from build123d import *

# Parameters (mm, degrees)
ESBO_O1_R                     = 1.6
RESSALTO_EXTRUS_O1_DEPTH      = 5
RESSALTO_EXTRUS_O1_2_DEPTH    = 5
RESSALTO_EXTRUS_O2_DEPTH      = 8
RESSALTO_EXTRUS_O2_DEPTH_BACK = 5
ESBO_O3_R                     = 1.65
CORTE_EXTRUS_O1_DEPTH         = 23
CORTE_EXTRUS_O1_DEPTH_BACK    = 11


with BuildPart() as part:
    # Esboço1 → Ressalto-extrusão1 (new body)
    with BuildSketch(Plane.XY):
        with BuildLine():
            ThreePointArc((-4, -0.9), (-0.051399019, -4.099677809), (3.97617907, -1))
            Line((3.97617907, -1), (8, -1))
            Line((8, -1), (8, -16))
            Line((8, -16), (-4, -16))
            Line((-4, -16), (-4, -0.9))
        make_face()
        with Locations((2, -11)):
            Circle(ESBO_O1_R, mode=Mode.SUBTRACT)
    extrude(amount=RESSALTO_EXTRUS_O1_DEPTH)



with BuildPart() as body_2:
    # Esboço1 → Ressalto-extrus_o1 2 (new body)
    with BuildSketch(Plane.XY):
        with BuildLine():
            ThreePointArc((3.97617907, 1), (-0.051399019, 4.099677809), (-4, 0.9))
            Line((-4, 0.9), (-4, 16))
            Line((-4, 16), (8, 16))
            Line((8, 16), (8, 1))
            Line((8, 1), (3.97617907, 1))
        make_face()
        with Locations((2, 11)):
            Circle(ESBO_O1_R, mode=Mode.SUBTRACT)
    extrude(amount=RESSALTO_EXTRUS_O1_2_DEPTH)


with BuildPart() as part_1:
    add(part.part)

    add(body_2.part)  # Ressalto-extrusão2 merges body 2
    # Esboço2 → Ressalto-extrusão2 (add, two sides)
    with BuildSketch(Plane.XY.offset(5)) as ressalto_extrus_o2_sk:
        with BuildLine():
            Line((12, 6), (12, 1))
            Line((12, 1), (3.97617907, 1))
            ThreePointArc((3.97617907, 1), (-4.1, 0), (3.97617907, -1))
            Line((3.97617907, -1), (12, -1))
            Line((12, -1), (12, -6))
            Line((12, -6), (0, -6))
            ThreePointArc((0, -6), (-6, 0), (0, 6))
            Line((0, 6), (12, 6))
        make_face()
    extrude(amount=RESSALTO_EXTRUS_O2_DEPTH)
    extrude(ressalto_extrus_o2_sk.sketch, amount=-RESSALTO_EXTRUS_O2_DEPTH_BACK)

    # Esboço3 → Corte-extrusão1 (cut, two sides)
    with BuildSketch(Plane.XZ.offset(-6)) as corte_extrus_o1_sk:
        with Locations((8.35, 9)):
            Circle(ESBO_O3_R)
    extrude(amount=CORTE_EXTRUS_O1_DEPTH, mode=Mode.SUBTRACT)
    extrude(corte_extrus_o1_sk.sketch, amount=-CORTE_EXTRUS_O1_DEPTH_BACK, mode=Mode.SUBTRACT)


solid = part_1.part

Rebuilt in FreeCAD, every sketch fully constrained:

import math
import FreeCAD as App
import Part
import Sketcher

V = App.Vector
Q = App.Units.Quantity

doc = App.newDocument("Part")
body = doc.addObject("PartDesign::Body", "Body")

# Sketch on XY plane
sketch1 = doc.addObject("Sketcher::SketchObject", "Sketch")
body.addObject(sketch1)
sketch1.AttachmentSupport = (doc.XY_Plane, [""])
sketch1.MapMode = "FlatFace"
sketch1.addGeometry(Part.ArcOfCircle(Part.Circle(V(0, 0, 0), V(0, 0, 1), 4.1), math.radians(-167), math.radians(-14)), False)
sketch1.addGeometry(Part.LineSegment(V(-4, -0.9, 0), V(-4, -16, 0)), False)
sketch1.addGeometry(Part.LineSegment(V(-4, -16, 0), V(8, -16, 0)), False)
sketch1.addGeometry(Part.LineSegment(V(8, -16, 0), V(8, -1, 0)), False)
sketch1.addGeometry(Part.LineSegment(V(8, -1, 0), V(4, -1, 0)), False)
sketch1.addGeometry(Part.Circle(V(2, -11, 0), V(0, 0, 1), 1.6), False)
sketch1.addConstraint(Sketcher.Constraint("Coincident", 0, 1, 1, 1))
sketch1.addConstraint(Sketcher.Constraint("Coincident", 1, 2, 2, 1))
sketch1.addConstraint(Sketcher.Constraint("Coincident", 2, 2, 3, 1))
sketch1.addConstraint(Sketcher.Constraint("Coincident", 3, 2, 4, 1))
sketch1.addConstraint(Sketcher.Constraint("Coincident", 4, 2, 0, 2))
sketch1.addConstraint(Sketcher.Constraint("Vertical", 1))
sketch1.addConstraint(Sketcher.Constraint("Horizontal", 2))
sketch1.addConstraint(Sketcher.Constraint("Vertical", 3))
sketch1.addConstraint(Sketcher.Constraint("Horizontal", 4))
sketch1.addConstraint(Sketcher.Constraint("Coincident", 0, 3, -1, 1))
sketch1.addConstraint(Sketcher.Constraint("Diameter", 5, Q("3.2 mm")))
sketch1.addConstraint(Sketcher.Constraint("Radius", 0, Q("4.1 mm")))
sketch1.addConstraint(Sketcher.Constraint("DistanceX", 2, 1, 2, 2, Q("12 mm")))
sketch1.addConstraint(Sketcher.Constraint("DistanceY", 3, 1, 3, 2, Q("15 mm")))
sketch1.addConstraint(Sketcher.Constraint("DistanceY", 1, 2, 1, 1, Q("15.1 mm")))
sketch1.addConstraint(Sketcher.Constraint("DistanceX", -1, 1, 5, 3, Q("2 mm")))
sketch1.addConstraint(Sketcher.Constraint("DistanceY", 5, 3, -1, 1, Q("11 mm")))
sketch1.addConstraint(Sketcher.Constraint("DistanceX", 0, 1, -1, 1, Q("4 mm")))
pad1 = doc.addObject("PartDesign::Pad", "Pad")
body.addObject(pad1)
pad1.Profile = sketch1
pad1.Length = 5
body2 = doc.addObject("PartDesign::Body", "Body001")

# Sketch on XY plane
sketch2 = doc.addObject("Sketcher::SketchObject", "Sketch001")
body2.addObject(sketch2)
sketch2.AttachmentSupport = (doc.getObject("XY_Plane001"), [""])
sketch2.MapMode = "FlatFace"
sketch2.addGeometry(Part.ArcOfCircle(Part.Circle(V(0, 0, 0), V(0, 0, 1), 4.1), math.radians(14), math.radians(167)), False)
sketch2.addGeometry(Part.LineSegment(V(4, 1, 0), V(8, 1, 0)), False)
sketch2.addGeometry(Part.LineSegment(V(8, 1, 0), V(8, 16, 0)), False)
sketch2.addGeometry(Part.LineSegment(V(8, 16, 0), V(-4, 16, 0)), False)
sketch2.addGeometry(Part.LineSegment(V(-4, 16, 0), V(-4, 0.9, 0)), False)
sketch2.addGeometry(Part.Circle(V(2, 11, 0), V(0, 0, 1), 1.6), False)
sketch2.addConstraint(Sketcher.Constraint("Coincident", 0, 1, 1, 1))
sketch2.addConstraint(Sketcher.Constraint("Coincident", 1, 2, 2, 1))
sketch2.addConstraint(Sketcher.Constraint("Coincident", 2, 2, 3, 1))
sketch2.addConstraint(Sketcher.Constraint("Coincident", 3, 2, 4, 1))
sketch2.addConstraint(Sketcher.Constraint("Coincident", 4, 2, 0, 2))
sketch2.addConstraint(Sketcher.Constraint("Horizontal", 1))
sketch2.addConstraint(Sketcher.Constraint("Vertical", 2))
sketch2.addConstraint(Sketcher.Constraint("Horizontal", 3))
sketch2.addConstraint(Sketcher.Constraint("Vertical", 4))
sketch2.addConstraint(Sketcher.Constraint("Coincident", 0, 3, -1, 1))
sketch2.addConstraint(Sketcher.Constraint("Diameter", 5, Q("3.2 mm")))
sketch2.addConstraint(Sketcher.Constraint("Radius", 0, Q("4.1 mm")))
sketch2.addConstraint(Sketcher.Constraint("DistanceX", 3, 2, 3, 1, Q("12 mm")))
sketch2.addConstraint(Sketcher.Constraint("DistanceY", 2, 1, 2, 2, Q("15 mm")))
sketch2.addConstraint(Sketcher.Constraint("DistanceY", 4, 2, 4, 1, Q("15.1 mm")))
sketch2.addConstraint(Sketcher.Constraint("DistanceX", -1, 1, 5, 3, Q("2 mm")))
sketch2.addConstraint(Sketcher.Constraint("DistanceY", -1, 1, 5, 3, Q("11 mm")))
sketch2.addConstraint(Sketcher.Constraint("DistanceY", -1, 1, 0, 1, Q("1 mm")))
pad2 = doc.addObject("PartDesign::Pad", "Pad001")
body2.addObject(pad2)
pad2.Profile = sketch2
pad2.Length = 5
body.AllowCompound = True
doc.recompute()

boolean = doc.addObject("PartDesign::Boolean", "Boolean")
body.addObject(boolean)
boolean.Type = "Fuse"
boolean.addObjects([body2])

# Sketch on XY plane
sketch3 = doc.addObject("Sketcher::SketchObject", "Sketch002")
body.addObject(sketch3)
sketch3.AttachmentSupport = (doc.XY_Plane, [""])
sketch3.MapMode = "FlatFace"
sketch3.AttachmentOffset = App.Placement(V(0, 0, 5), App.Rotation())
sketch3.addGeometry(Part.LineSegment(V(12, 1, 0), V(12, 6, 0)), False)
sketch3.addGeometry(Part.LineSegment(V(12, 6, 0), V(0, 6, 0)), False)
sketch3.addGeometry(Part.ArcOfCircle(Part.Circle(V(0, 0, 0), V(0, 0, 1), 6), math.radians(90), math.radians(270)), False)
sketch3.addGeometry(Part.LineSegment(V(0, -6, 0), V(12, -6, 0)), False)
sketch3.addGeometry(Part.LineSegment(V(12, -6, 0), V(12, -1, 0)), False)
sketch3.addGeometry(Part.LineSegment(V(12, -1, 0), V(4, -1, 0)), False)
sketch3.addGeometry(Part.ArcOfCircle(Part.Circle(V(0, 0, 0), V(0, 0, 1), 4.1), math.radians(14), math.radians(346)), False)
sketch3.addGeometry(Part.LineSegment(V(4, 1, 0), V(12, 1, 0)), False)
sketch3.addConstraint(Sketcher.Constraint("Coincident", 0, 2, 1, 1))
sketch3.addConstraint(Sketcher.Constraint("Tangent", 1, 2, 2, 1))
sketch3.addConstraint(Sketcher.Constraint("Tangent", 2, 2, 3, 1))
sketch3.addConstraint(Sketcher.Constraint("Coincident", 3, 2, 4, 1))
sketch3.addConstraint(Sketcher.Constraint("Coincident", 4, 2, 5, 1))
sketch3.addConstraint(Sketcher.Constraint("Coincident", 5, 2, 6, 2))
sketch3.addConstraint(Sketcher.Constraint("Coincident", 6, 1, 7, 1))
sketch3.addConstraint(Sketcher.Constraint("Coincident", 7, 2, 0, 1))
sketch3.addConstraint(Sketcher.Constraint("Vertical", 0))
sketch3.addConstraint(Sketcher.Constraint("Horizontal", 1))
sketch3.addConstraint(Sketcher.Constraint("Horizontal", 3))
sketch3.addConstraint(Sketcher.Constraint("Vertical", 4))
sketch3.addConstraint(Sketcher.Constraint("Horizontal", 5))
sketch3.addConstraint(Sketcher.Constraint("Horizontal", 7))
sketch3.addConstraint(Sketcher.Constraint("Coincident", 2, 3, -1, 1))
sketch3.addConstraint(Sketcher.Constraint("Coincident", 6, 3, -1, 1))
sketch3.addConstraint(Sketcher.Constraint("Symmetric", 4, 2, 7, 2, -1))
sketch3.addConstraint(Sketcher.Constraint("Radius", 2, Q("6 mm")))
sketch3.addConstraint(Sketcher.Constraint("Radius", 6, Q("4.1 mm")))
sketch3.addConstraint(Sketcher.Constraint("DistanceX", 1, 2, 1, 1, Q("12 mm")))
sketch3.addConstraint(Sketcher.Constraint("DistanceY", 0, 1, 0, 2, Q("5 mm")))
pad3 = doc.addObject("PartDesign::Pad", "Pad002")
body.addObject(pad3)
pad3.Profile = sketch3
pad3.Type = "TwoLengths"
pad3.Length = 8
pad3.Length2 = 5

# Sketch on XZ plane
sketch4 = doc.addObject("Sketcher::SketchObject", "Sketch003")
body.addObject(sketch4)
sketch4.AttachmentSupport = (doc.XZ_Plane, [""])
sketch4.MapMode = "FlatFace"
sketch4.AttachmentOffset = App.Placement(V(0, 0, -6), App.Rotation())
sketch4.addGeometry(Part.Circle(V(8.3, 9, 0), V(0, 0, 1), 1.6), False)
sketch4.addConstraint(Sketcher.Constraint("Diameter", 0, Q("3.3 mm")))
sketch4.addConstraint(Sketcher.Constraint("DistanceY", -1, 1, 0, 3, Q("9 mm")))
sketch4.addConstraint(Sketcher.Constraint("DistanceX", -1, 1, 0, 3, Q("8.35 mm")))
pocket1 = doc.addObject("PartDesign::Pocket", "Pocket")
body.addObject(pocket1)
pocket1.Profile = sketch4
pocket1.Type = "ThroughAll"
pocket1.Midplane = True

doc.recompute()
